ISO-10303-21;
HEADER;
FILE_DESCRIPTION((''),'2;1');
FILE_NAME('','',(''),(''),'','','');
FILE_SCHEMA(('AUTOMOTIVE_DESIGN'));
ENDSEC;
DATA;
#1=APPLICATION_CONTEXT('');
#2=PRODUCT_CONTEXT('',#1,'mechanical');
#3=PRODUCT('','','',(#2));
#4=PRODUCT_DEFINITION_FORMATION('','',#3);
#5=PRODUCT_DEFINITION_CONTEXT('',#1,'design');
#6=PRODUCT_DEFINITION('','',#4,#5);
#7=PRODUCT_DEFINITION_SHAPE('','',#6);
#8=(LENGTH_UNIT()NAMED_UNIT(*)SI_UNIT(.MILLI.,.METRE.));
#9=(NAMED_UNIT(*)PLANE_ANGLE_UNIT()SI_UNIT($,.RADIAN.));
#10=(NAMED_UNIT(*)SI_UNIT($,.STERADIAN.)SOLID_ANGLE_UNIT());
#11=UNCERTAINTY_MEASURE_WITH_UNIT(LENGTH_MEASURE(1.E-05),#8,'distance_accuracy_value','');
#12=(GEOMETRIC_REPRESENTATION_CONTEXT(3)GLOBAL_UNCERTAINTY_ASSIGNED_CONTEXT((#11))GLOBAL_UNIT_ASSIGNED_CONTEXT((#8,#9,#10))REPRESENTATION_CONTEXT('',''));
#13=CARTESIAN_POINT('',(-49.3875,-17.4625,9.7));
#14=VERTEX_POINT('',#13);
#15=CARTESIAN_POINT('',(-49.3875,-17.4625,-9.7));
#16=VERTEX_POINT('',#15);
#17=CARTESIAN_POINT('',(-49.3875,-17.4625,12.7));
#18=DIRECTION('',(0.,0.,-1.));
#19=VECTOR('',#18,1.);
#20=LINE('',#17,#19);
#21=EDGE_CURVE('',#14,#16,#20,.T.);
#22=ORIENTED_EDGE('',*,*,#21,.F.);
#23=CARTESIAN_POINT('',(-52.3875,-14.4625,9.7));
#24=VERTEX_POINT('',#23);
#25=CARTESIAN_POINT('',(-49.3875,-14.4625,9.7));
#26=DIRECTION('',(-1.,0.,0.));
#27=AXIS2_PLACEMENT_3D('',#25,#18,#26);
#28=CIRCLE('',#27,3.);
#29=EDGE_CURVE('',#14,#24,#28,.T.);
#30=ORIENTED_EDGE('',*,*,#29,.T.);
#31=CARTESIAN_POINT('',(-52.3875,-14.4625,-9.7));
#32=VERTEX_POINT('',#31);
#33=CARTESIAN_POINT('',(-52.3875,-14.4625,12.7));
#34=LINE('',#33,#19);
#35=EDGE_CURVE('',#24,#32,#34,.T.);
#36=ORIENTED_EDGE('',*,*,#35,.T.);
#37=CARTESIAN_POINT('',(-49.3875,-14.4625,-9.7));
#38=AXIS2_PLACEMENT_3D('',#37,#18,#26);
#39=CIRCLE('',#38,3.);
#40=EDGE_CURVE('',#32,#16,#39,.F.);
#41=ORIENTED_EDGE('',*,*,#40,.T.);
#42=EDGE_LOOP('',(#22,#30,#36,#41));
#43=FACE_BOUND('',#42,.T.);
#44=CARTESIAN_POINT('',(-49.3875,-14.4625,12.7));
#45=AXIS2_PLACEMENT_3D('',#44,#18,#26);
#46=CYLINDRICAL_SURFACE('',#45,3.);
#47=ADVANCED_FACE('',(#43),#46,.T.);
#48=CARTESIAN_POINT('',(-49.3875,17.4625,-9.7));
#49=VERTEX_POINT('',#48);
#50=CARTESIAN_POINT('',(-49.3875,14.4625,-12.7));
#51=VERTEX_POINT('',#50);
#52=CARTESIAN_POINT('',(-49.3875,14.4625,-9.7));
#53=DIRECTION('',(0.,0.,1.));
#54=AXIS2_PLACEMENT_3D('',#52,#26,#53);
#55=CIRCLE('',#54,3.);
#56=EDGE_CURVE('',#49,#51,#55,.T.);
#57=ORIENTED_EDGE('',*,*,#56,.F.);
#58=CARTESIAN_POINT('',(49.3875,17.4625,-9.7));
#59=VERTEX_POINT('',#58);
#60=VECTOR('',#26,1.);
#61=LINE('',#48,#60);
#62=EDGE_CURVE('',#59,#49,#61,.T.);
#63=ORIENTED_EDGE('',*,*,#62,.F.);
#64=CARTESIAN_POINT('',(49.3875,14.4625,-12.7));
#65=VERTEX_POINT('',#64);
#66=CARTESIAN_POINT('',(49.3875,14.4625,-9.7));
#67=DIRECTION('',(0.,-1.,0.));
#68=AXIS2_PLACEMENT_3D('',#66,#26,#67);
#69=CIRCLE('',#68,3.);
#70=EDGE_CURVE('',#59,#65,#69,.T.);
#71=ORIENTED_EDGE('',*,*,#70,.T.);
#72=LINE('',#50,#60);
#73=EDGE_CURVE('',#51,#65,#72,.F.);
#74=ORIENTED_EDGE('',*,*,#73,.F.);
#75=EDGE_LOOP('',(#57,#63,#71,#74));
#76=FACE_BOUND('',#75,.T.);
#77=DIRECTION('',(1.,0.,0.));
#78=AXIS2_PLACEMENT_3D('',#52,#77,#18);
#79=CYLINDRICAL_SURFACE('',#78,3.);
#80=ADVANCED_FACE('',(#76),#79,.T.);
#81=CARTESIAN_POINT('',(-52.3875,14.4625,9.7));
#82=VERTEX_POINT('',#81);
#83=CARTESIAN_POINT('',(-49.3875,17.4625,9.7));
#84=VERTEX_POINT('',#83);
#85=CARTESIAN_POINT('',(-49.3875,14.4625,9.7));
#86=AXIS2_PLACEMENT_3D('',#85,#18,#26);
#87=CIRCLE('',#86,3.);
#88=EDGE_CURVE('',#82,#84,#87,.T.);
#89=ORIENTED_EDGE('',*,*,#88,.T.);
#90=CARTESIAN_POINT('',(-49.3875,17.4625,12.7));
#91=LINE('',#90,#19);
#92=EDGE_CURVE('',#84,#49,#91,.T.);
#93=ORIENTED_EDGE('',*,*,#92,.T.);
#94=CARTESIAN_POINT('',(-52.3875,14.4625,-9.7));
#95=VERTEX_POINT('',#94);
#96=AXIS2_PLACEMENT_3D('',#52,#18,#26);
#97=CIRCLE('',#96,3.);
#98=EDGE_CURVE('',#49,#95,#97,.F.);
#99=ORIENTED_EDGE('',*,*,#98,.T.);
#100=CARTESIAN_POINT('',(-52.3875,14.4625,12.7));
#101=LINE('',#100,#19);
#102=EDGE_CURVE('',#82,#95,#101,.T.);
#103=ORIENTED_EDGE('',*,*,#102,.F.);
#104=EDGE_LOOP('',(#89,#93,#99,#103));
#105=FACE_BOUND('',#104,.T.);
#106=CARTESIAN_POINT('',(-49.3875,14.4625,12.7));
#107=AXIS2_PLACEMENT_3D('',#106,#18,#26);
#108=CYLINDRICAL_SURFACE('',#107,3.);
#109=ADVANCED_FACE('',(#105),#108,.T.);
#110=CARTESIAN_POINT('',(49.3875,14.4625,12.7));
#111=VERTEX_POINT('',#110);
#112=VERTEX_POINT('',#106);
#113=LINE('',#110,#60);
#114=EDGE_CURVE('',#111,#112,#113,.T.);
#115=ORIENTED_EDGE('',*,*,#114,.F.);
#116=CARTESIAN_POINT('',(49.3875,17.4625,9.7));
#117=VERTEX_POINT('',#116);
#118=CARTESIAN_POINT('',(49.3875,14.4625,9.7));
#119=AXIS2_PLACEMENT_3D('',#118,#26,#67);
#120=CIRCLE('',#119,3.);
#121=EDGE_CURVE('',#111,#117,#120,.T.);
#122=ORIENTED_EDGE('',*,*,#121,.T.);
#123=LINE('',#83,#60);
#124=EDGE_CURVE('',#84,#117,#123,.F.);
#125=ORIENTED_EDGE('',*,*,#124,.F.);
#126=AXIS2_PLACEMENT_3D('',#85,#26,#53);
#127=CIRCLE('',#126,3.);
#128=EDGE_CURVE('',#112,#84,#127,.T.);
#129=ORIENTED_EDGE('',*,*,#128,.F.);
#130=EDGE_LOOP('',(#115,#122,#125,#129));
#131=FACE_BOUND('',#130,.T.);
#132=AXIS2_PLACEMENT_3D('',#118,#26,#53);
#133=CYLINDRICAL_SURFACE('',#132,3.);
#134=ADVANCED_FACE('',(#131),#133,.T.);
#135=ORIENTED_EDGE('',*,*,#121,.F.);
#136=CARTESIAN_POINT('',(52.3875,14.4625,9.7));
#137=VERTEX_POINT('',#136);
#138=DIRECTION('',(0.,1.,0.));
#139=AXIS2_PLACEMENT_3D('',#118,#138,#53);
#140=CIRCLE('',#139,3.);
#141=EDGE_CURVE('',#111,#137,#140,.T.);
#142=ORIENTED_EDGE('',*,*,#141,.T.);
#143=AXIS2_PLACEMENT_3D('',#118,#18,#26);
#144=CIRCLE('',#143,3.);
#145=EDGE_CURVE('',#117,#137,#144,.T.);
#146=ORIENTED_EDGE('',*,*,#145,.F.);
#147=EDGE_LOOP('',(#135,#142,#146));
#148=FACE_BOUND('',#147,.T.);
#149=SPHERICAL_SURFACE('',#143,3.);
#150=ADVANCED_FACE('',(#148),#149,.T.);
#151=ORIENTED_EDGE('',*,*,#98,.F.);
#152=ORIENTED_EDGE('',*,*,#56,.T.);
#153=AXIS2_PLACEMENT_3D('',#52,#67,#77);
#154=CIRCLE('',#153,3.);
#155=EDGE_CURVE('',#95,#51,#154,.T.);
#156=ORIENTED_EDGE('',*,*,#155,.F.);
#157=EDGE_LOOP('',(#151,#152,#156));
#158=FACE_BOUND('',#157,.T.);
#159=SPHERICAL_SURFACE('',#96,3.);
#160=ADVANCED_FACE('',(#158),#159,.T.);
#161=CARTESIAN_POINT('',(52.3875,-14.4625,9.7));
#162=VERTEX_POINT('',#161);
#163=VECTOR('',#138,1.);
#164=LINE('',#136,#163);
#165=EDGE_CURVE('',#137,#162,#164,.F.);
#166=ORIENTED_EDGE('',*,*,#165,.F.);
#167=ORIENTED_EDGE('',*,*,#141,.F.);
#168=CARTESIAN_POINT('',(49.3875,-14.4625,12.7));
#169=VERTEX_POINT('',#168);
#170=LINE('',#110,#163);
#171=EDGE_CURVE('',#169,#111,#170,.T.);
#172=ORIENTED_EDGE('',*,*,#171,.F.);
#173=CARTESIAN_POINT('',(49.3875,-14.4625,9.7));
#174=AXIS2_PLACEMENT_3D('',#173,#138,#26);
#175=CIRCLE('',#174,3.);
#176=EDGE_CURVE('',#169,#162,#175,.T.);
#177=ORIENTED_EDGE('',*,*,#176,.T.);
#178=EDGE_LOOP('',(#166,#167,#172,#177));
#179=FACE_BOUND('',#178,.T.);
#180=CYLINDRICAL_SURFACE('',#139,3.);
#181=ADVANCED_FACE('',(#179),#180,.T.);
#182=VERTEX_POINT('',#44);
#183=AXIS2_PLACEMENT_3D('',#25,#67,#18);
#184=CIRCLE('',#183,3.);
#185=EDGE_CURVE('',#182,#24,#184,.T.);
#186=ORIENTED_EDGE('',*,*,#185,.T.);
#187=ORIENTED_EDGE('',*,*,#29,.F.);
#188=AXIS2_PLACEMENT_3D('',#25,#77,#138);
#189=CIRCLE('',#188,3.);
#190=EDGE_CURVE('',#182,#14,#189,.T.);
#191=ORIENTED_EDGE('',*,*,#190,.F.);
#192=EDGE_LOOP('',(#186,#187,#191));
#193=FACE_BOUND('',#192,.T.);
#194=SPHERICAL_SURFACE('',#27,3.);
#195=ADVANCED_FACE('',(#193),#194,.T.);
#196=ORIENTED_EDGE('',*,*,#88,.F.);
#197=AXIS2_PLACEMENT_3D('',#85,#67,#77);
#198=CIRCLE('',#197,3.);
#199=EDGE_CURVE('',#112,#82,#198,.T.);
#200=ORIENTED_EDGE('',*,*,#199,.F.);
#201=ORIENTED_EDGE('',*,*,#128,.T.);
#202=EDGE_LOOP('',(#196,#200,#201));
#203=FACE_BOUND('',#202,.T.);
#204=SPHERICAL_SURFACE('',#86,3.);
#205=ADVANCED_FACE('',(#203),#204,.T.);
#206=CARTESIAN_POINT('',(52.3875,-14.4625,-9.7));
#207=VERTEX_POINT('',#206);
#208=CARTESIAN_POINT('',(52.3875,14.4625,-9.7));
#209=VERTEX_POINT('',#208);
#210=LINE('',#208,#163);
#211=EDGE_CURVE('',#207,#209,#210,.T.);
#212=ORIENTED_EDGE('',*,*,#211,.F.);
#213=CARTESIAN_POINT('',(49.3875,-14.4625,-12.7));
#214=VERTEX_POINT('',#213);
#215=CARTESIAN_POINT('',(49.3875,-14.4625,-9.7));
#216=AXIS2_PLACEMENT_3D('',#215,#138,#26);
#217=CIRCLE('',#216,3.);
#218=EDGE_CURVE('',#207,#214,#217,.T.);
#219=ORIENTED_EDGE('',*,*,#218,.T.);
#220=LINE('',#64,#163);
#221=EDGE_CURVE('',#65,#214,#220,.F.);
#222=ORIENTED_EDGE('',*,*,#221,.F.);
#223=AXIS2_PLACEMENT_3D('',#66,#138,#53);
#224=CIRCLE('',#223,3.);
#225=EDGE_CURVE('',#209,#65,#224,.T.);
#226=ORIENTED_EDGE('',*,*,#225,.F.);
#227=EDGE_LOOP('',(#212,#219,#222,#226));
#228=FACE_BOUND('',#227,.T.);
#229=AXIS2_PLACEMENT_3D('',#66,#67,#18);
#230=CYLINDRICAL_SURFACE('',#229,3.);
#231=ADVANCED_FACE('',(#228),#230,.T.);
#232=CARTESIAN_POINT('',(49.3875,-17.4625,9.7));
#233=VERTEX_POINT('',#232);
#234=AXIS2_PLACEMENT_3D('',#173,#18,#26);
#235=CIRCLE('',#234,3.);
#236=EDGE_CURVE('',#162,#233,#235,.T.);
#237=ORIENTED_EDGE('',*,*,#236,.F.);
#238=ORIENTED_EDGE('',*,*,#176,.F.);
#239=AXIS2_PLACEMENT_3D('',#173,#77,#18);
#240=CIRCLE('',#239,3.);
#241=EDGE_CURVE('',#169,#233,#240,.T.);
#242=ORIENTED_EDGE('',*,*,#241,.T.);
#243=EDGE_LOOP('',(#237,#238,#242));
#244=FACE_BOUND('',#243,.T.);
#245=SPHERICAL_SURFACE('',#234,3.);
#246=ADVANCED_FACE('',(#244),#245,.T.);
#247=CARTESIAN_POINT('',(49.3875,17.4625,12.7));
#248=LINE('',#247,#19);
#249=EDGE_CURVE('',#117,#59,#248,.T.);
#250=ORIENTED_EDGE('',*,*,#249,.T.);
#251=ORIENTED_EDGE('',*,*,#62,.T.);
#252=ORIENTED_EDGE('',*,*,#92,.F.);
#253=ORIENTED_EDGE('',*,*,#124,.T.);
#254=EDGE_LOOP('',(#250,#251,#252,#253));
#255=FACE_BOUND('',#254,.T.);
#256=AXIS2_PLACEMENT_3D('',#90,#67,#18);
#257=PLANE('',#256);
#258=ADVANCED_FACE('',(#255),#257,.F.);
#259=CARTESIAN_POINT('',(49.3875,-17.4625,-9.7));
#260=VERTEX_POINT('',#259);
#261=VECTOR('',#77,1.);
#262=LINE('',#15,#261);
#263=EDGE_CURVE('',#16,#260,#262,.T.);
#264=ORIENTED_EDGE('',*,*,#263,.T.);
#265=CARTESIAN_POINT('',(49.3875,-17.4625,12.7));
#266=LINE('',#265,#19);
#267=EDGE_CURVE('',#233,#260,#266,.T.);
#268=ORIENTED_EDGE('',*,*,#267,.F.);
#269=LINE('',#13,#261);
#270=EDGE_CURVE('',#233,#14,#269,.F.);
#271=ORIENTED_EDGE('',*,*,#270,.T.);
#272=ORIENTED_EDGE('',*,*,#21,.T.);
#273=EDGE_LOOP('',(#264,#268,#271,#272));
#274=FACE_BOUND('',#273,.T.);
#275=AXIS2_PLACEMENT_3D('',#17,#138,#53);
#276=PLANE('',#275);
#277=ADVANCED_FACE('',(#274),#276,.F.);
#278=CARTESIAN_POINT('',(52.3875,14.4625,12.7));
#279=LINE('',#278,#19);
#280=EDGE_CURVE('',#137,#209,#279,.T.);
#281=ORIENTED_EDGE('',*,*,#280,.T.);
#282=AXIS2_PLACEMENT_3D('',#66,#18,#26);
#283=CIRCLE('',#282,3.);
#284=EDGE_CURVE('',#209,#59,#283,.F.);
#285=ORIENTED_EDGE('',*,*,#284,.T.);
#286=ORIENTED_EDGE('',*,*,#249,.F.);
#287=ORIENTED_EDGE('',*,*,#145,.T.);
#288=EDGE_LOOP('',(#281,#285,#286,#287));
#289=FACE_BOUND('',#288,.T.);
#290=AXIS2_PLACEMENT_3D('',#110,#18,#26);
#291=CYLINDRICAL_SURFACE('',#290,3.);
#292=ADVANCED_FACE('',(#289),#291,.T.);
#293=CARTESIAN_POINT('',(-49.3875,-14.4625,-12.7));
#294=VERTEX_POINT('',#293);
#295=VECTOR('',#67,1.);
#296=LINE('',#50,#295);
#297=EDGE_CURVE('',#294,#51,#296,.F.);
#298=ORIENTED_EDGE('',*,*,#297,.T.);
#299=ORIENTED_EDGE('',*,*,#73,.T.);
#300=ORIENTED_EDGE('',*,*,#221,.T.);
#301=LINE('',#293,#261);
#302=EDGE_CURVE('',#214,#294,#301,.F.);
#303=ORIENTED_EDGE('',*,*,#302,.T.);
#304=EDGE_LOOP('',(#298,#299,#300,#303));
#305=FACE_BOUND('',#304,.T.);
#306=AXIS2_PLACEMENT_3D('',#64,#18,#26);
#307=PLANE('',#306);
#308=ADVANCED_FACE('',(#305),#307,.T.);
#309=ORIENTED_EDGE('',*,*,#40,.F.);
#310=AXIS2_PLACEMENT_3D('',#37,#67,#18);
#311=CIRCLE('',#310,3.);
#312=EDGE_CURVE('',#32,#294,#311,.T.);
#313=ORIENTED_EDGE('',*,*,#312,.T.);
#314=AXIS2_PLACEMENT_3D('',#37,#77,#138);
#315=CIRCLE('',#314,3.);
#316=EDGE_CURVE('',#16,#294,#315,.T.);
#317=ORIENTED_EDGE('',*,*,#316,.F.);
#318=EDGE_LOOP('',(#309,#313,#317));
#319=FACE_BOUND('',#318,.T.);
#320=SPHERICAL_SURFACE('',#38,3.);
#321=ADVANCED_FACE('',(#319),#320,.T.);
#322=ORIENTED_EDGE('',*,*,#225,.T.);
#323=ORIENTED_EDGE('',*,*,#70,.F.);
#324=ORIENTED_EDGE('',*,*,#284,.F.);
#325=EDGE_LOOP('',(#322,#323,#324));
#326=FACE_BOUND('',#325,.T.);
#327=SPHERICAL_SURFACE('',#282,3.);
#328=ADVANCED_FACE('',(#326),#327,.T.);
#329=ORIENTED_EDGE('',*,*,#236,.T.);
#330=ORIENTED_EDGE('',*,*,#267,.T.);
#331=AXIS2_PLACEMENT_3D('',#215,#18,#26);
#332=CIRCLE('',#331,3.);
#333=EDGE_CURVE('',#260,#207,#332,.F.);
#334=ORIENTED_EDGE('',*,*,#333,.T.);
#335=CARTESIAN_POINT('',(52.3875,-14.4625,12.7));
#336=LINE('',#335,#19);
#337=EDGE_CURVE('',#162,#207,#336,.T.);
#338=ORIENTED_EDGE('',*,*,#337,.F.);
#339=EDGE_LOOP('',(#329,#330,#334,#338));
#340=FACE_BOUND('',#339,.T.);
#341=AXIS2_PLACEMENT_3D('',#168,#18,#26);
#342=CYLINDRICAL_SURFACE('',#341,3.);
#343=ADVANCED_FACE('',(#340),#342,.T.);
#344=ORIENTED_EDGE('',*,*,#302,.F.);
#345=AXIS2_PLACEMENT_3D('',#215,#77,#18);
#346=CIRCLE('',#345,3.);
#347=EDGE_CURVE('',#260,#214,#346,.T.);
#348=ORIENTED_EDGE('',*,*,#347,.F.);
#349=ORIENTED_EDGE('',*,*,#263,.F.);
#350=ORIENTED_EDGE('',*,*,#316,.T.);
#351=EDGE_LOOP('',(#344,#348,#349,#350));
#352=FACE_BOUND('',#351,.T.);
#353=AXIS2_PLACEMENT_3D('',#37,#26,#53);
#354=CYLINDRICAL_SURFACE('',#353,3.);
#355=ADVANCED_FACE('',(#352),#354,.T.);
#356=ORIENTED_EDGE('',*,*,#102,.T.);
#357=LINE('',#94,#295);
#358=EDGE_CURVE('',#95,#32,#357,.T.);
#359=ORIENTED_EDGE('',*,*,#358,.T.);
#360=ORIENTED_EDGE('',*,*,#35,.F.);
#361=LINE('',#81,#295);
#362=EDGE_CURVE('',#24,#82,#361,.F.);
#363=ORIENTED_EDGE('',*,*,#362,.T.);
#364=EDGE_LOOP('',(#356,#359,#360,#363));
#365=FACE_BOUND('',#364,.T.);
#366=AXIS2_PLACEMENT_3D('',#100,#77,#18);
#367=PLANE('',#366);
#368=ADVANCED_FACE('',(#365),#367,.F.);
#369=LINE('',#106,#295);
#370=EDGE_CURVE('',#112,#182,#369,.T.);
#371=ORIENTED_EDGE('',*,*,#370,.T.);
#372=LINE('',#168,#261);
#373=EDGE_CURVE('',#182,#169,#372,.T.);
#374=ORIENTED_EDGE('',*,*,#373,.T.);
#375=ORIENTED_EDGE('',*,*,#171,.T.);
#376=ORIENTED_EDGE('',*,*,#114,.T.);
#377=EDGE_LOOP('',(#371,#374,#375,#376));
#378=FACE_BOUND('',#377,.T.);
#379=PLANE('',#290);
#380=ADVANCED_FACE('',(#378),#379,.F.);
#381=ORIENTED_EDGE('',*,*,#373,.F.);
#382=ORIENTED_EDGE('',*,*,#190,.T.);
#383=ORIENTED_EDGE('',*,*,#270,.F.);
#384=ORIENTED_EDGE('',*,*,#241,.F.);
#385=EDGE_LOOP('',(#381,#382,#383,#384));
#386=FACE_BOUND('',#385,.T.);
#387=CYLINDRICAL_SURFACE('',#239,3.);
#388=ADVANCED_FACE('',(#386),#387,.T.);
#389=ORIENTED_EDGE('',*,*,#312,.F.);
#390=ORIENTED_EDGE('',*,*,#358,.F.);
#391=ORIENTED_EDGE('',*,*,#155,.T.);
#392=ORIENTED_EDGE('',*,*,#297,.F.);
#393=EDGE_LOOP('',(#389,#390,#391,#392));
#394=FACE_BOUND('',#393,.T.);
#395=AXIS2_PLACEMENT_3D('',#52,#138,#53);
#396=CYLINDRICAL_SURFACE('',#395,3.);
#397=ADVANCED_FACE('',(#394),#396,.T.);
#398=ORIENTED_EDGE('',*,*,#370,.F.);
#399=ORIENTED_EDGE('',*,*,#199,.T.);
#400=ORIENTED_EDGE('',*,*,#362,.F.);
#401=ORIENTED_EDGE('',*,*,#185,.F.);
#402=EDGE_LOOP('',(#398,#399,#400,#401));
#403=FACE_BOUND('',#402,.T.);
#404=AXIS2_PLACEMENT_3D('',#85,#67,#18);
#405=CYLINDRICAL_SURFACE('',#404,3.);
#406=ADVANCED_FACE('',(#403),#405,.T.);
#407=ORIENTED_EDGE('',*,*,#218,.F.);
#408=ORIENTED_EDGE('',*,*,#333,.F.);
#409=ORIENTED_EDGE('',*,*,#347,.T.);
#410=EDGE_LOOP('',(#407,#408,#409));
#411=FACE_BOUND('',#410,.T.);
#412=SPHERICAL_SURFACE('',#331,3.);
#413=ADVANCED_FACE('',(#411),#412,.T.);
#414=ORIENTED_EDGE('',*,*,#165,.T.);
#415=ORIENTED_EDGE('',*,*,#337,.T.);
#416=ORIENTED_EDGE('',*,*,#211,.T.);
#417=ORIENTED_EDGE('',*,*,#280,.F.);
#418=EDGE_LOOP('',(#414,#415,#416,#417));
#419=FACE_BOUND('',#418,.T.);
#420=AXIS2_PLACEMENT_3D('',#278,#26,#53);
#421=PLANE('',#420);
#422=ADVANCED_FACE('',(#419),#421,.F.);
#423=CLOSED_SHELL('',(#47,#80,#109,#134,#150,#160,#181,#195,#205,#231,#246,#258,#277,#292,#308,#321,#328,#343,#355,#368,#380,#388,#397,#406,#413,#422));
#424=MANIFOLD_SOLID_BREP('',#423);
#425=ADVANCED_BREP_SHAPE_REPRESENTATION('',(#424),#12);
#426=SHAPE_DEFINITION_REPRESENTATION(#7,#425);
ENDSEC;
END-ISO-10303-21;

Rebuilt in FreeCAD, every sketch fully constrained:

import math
import FreeCAD as App
import Part
import Sketcher

V = App.Vector
Q = App.Units.Quantity


def edges_at(feature, points):
    """Names of the edges that pass closest to the given points."""
    edges = feature.Shape.Edges
    near = lambda p: min(range(len(edges)), key=lambda i: edges[i].distToShape(Part.Vertex(*p))[0])
    return sorted({f"Edge{near(p) + 1}" for p in points})

doc = App.newDocument("Part")
params = doc.addObject("Spreadsheet::Sheet", "Params")
for row, (alias, value) in enumerate([
    ("sketch1_radius", "3 mm"),
    ("pad1_length", "25.4 mm"),
    ("fillet_radius", "3 mm"),
    ("fillet2_radius", "3 mm"),
], start=1):
    params.set(f"A{row}", alias)
    params.set(f"B{row}", "=" + value)
    params.setAlias(f"B{row}", alias)

body = doc.addObject("PartDesign::Body", "Body")

# Sketch on XY plane
sketch1 = doc.addObject("Sketcher::SketchObject", "Sketch")
body.addObject(sketch1)
sketch1.AttachmentSupport = (doc.XY_Plane, [""])
sketch1.MapMode = "FlatFace"
sketch1.addGeometry([
    Part.LineSegment(V(49.4, 17.5, 0), V(-49.4, 17.5, 0)),  # 0
    Part.ArcOfCircle(Part.Circle(V(-49.4, 14.5, 0), V(0, 0, 1), 3), math.radians(90), math.radians(180)),  # 1
    Part.LineSegment(V(-52.4, 14.5, 0), V(-52.4, -14.5, 0)),  # 2
    Part.ArcOfCircle(Part.Circle(V(-49.4, -14.5, 0), V(0, 0, 1), 3), math.radians(180), math.radians(270)),  # 3
    Part.LineSegment(V(-49.4, -17.5, 0), V(49.4, -17.5, 0)),  # 4
    Part.ArcOfCircle(Part.Circle(V(49.4, -14.5, 0), V(0, 0, 1), 3), math.radians(-90), math.radians(0)),  # 5
    Part.LineSegment(V(52.4, -14.5, 0), V(52.4, 14.5, 0)),  # 6
    Part.ArcOfCircle(Part.Circle(V(49.4, 14.5, 0), V(0, 0, 1), 3), math.radians(0), math.radians(90)),  # 7
], False)
sketch1.addConstraint([
    Sketcher.Constraint("Tangent", 0, 2, 1, 1),
    Sketcher.Constraint("Tangent", 1, 2, 2, 1),
    Sketcher.Constraint("Tangent", 2, 2, 3, 1),
    Sketcher.Constraint("Tangent", 3, 2, 4, 1),
    Sketcher.Constraint("Tangent", 4, 2, 5, 1),
    Sketcher.Constraint("Tangent", 5, 2, 6, 1),
    Sketcher.Constraint("Tangent", 6, 2, 7, 1),
    Sketcher.Constraint("Tangent", 7, 2, 0, 1),
    Sketcher.Constraint("Horizontal", 0),
    Sketcher.Constraint("Vertical", 2),
    Sketcher.Constraint("Horizontal", 4),
    Sketcher.Constraint("Vertical", 6),
    Sketcher.Constraint("Equal", 1, 3),
    Sketcher.Constraint("Equal", 3, 5),
    Sketcher.Constraint("Equal", 5, 7),
    Sketcher.Constraint("Symmetric", 1, 3, 5, 3, -1, 1),
    Sketcher.Constraint("Radius", 1, Q("3 mm")),
    Sketcher.Constraint("DistanceX", 0, 2, 0, 1, Q("98.775 mm")),
    Sketcher.Constraint("DistanceY", 2, 2, 2, 1, Q("28.925 mm")),
])
sketch1.setExpression("Constraints[16]", "Params.sketch1_radius")
pad1 = doc.addObject("PartDesign::Pad", "Pad")
body.addObject(pad1)
pad1.Profile = sketch1
pad1.setExpression("Length", "Params.pad1_length")
pad1.Midplane = True
doc.recompute()

fillet = doc.addObject("PartDesign::Fillet", "Fillet")
body.addObject(fillet)
fillet.Base = (pad1, edges_at(pad1, [
    (-51.509, 16.584, 12.7),
    (-52.388, 0, 12.7),
    (-51.509, -16.584, 12.7),
    (0, -17.462, 12.7),
    (51.509, -16.584, 12.7),
    (52.388, 0, 12.7),
    (51.509, 16.584, 12.7),
    (0, 17.462, 12.7),
]))
fillet.setExpression("Radius", "Params.fillet_radius")
doc.recompute()

fillet2 = doc.addObject("PartDesign::Fillet", "Fillet001")
body.addObject(fillet2)
fillet2.Base = (fillet, edges_at(fillet, [
    (0, 17.462, -12.7),
    (51.509, 16.584, -12.7),
    (52.388, 0, -12.7),
    (51.509, -16.584, -12.7),
    (0, -17.462, -12.7),
    (-51.509, -16.584, -12.7),
    (-52.388, 0, -12.7),
    (-51.509, 16.584, -12.7),
]))
fillet2.setExpression("Radius", "Params.fillet2_radius")

doc.recompute()
